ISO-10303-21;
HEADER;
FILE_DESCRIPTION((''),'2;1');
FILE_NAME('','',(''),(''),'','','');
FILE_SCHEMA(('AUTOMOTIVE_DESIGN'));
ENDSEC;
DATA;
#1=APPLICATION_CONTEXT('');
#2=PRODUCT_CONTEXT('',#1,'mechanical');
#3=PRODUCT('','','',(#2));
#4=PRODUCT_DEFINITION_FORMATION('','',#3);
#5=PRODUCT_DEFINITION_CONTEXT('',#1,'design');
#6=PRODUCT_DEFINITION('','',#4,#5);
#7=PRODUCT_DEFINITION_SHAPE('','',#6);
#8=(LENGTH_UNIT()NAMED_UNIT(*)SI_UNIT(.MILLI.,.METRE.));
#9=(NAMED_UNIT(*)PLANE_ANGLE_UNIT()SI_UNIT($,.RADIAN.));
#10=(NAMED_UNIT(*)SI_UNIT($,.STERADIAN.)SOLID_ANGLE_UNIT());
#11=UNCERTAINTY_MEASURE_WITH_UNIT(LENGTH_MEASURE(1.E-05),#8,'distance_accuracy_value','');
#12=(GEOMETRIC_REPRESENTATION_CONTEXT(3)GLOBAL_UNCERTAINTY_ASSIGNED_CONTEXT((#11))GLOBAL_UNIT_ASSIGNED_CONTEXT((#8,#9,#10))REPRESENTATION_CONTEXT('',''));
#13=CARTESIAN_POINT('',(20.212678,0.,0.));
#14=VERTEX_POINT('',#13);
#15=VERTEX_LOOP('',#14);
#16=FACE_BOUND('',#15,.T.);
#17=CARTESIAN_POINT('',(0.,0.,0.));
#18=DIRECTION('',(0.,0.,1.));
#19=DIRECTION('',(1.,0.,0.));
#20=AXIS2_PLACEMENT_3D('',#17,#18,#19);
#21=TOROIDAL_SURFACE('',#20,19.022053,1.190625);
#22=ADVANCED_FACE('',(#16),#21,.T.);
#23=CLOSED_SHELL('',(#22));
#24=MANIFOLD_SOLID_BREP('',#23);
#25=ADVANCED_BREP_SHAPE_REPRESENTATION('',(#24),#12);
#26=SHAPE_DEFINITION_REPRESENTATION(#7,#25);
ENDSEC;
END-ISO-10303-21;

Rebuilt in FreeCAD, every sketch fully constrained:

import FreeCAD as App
import Part
import Sketcher
Q = App.Units.Quantity

doc = App.newDocument("Part")
body = doc.addObject("PartDesign::Body", "Body")

# Sketch on YZ plane
sketch1 = body.newObject("Sketcher::SketchObject", "Sketch")
sketch1.AttachmentSupport = (doc.getObject("YZ_Plane"), [""])
sketch1.MapMode = "FlatFace"
sketch1.addGeometry(Part.Circle(App.Vector(19, 0, 0), App.Vector(0, 0, 1), 1.2), False)
sketch1.addConstraint([
    Sketcher.Constraint("PointOnObject", 0, 3, -1),
    Sketcher.Constraint("Diameter", 0, Q("0.09375 in")),
    Sketcher.Constraint("DistanceX", -1, 1, 0, 3, Q("19.022053 mm")),
])

# Sketch on XY plane
sketch2 = body.newObject("Sketcher::SketchObject", "Sketch001")
sketch2.AttachmentSupport = (doc.getObject("XY_Plane"), [""])
sketch2.MapMode = "FlatFace"
sketch2.addGeometry(Part.Circle(App.Vector(0, 0, 0), App.Vector(0, 0, 1), 19), False)
sketch2.addConstraint([
    Sketcher.Constraint("Coincident", 0, 3, -1, 1),
    Sketcher.Constraint("Diameter", 0, Q("38.044106 mm")),
])
doc.recompute()

additivepipe = body.newObject("PartDesign::AdditivePipe", "AdditivePipe")
additivepipe.Profile = sketch1
additivepipe.Spine = (sketch2, ["Edge1"])

doc.recompute()
